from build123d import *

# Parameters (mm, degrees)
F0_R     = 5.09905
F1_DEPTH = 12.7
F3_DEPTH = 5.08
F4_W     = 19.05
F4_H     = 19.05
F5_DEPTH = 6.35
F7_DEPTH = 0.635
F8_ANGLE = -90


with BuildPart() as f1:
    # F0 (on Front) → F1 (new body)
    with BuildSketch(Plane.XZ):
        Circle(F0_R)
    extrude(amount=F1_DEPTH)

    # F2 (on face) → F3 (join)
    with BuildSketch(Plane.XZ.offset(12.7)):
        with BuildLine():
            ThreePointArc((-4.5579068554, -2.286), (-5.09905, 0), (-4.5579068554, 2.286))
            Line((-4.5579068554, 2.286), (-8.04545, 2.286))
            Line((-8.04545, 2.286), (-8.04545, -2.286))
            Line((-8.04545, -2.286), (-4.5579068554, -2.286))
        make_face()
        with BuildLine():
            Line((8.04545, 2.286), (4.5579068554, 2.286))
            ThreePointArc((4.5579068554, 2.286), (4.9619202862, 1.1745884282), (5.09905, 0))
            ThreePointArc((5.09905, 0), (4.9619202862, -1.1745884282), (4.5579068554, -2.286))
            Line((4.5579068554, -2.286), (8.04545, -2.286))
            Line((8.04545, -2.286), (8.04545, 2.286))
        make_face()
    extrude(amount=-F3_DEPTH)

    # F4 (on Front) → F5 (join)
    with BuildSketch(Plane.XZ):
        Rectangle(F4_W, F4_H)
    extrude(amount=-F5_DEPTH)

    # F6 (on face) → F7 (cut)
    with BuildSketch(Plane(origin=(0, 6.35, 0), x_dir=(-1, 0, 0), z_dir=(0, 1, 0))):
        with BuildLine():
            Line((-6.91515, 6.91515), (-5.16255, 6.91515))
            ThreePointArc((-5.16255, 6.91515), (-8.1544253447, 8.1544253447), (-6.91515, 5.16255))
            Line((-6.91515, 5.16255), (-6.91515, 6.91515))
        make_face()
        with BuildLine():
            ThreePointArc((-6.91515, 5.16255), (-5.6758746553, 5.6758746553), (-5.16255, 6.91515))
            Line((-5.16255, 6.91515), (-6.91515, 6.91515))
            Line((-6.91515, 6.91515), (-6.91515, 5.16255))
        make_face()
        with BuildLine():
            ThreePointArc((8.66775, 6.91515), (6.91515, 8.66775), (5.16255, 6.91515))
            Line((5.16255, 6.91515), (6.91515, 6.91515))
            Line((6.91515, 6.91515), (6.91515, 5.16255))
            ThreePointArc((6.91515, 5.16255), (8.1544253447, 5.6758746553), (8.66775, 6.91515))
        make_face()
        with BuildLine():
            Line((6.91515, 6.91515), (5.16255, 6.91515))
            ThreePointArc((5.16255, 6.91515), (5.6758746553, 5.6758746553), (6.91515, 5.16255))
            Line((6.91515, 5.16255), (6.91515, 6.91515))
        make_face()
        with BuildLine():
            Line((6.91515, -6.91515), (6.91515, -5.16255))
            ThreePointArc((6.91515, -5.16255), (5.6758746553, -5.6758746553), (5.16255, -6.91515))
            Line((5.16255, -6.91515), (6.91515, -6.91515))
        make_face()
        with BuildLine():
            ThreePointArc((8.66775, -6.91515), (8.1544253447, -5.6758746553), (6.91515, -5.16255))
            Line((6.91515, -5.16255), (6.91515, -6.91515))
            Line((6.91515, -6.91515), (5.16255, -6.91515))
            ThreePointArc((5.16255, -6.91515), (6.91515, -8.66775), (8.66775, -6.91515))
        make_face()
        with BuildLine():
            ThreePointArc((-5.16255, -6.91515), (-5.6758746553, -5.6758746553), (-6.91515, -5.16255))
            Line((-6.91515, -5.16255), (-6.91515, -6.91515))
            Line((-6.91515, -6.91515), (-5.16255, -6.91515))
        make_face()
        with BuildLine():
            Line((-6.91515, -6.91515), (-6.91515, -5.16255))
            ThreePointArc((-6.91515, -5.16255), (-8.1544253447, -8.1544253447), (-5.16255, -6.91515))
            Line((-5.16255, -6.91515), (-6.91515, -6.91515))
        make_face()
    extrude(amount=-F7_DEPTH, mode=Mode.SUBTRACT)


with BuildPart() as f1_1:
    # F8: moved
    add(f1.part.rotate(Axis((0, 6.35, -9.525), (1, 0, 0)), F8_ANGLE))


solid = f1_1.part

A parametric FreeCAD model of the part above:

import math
import FreeCAD as App
import Part
import Sketcher
from FreeCAD import Vector
Q = App.Units.Quantity


def add_polygon(sketch, points):
    """Adds a closed chain of lines whose ends are joined by coincident constraints."""
    first, n = sketch.GeometryCount, len(points)
    for a, b in zip(points, points[1:] + points[:1]):
        sketch.addGeometry(Part.LineSegment(App.Vector(*a, 0), App.Vector(*b, 0)), False)
    for i in range(n):
        sketch.addConstraint(Sketcher.Constraint("Coincident", first + i, 2, first + (i + 1) % n, 1))

doc = App.newDocument("Part")
params = doc.addObject("Spreadsheet::Sheet", "Params")
for row, (alias, value) in enumerate([
    ("pad1_length", "0.5 in"),
    ("sketch2_height", "0.18 in"),
    ("pad2_length", "0.2 in"),
    ("sketch3_width", "0.75 in"),
    ("pad3_length", "0.25 in"),
    ("sketch4_radius", "0.069 in"),
    ("pocket1_length", "0.025 in"),
], start=1):
    params.set(f"A{row}", alias)
    params.set(f"B{row}", "=" + value)
    params.setAlias(f"B{row}", alias)

body = doc.addObject("PartDesign::Body", "Body")

# Sketch on XZ plane
sketch1 = doc.addObject("Sketcher::SketchObject", "Sketch")
body.addObject(sketch1)
sketch1.AttachmentSupport = (doc.XZ_Plane, [""])
sketch1.MapMode = "FlatFace"
sketch1.addGeometry(Part.Circle(Vector(0, 0, 0), Vector(0, 0, 1), 5.09905), False)
sketch1.addConstraint([
    Sketcher.Constraint("Coincident", 0, 3, -1, 1),
    Sketcher.Constraint("Diameter", 0, Q("0.4015 in")),
])
pad1 = doc.addObject("PartDesign::Pad", "Pad")
body.addObject(pad1)
pad1.Profile = sketch1
pad1.setExpression("Length", "Params.pad1_length")

# Sketch on XZ plane
sketch2 = doc.addObject("Sketcher::SketchObject", "Sketch001")
body.addObject(sketch2)
sketch2.AttachmentSupport = (doc.XZ_Plane, [""])
sketch2.MapMode = "FlatFace"
sketch2.AttachmentOffset = App.Placement(Vector(0, 0, 0.5 * 25.4), App.Rotation())
sketch2.addGeometry([
    Part.ArcOfCircle(Part.Circle(Vector(0, 0, 0), Vector(0, 0, 1), 5.09905), math.radians(153.364129), math.radians(206.635871)),  # 0
    Part.LineSegment(Vector(-4.557907, 2.286, 0), Vector(-8.04545, 2.286, 0)),  # 1
    Part.LineSegment(Vector(-8.04545, 2.286, 0), Vector(-8.04545, -2.286, 0)),  # 2
    Part.LineSegment(Vector(-8.04545, -2.286, 0), Vector(-4.557907, -2.286, 0)),  # 3
    Part.LineSegment(Vector(8.04545, 2.286, 0), Vector(4.557907, 2.286, 0)),  # 4
    Part.ArcOfCircle(Part.Circle(Vector(0, 0, 0), Vector(0, 0, 1), 5.09905), math.radians(0), math.radians(26.635871)),  # 5
    Part.ArcOfCircle(Part.Circle(Vector(0, 0, 0), Vector(0, 0, 1), 5.09905), math.radians(-26.635871), math.radians(0)),  # 6
    Part.LineSegment(Vector(4.557907, -2.286, 0), Vector(8.04545, -2.286, 0)),  # 7
    Part.LineSegment(Vector(8.04545, -2.286, 0), Vector(8.04545, 2.286, 0)),  # 8
], False)
sketch2.addConstraint([
    Sketcher.Constraint("Coincident", 0, 1, 1, 1),
    Sketcher.Constraint("Coincident", 1, 2, 2, 1),
    Sketcher.Constraint("Coincident", 2, 2, 3, 1),
    Sketcher.Constraint("Coincident", 3, 2, 0, 2),
    Sketcher.Constraint("Coincident", 4, 2, 5, 2),
    Sketcher.Constraint("Tangent", 5, 1, 6, 2),
    Sketcher.Constraint("Coincident", 6, 1, 7, 1),
    Sketcher.Constraint("Coincident", 7, 2, 8, 1),
    Sketcher.Constraint("Coincident", 8, 2, 4, 1),
    Sketcher.Constraint("Horizontal", 1),
    Sketcher.Constraint("Vertical", 2),
    Sketcher.Constraint("Horizontal", 3),
    Sketcher.Constraint("Horizontal", 4),
    Sketcher.Constraint("Horizontal", 7),
    Sketcher.Constraint("Vertical", 8),
    Sketcher.Constraint("Coincident", 0, 3, -1, 1),
    Sketcher.Constraint("Coincident", 5, 3, -1, 1),
    Sketcher.Constraint("Equal", 0, 5),
    Sketcher.Constraint("Equal", 5, 6),
    Sketcher.Constraint("Symmetric", 1, 2, 7, 2, -1, 1),
    Sketcher.Constraint("PointOnObject", 5, 1, -1),
    Sketcher.Constraint("Horizontal", 1, 2, 4, 2),
    Sketcher.Constraint("Horizontal", 3, 2, 6, 1),
    Sketcher.Constraint("DistanceY", 2, 2, 2, 1, Q("0.18 in")),
    Sketcher.Constraint("Radius", 0, 5.09905),
    Sketcher.Constraint("DistanceX", 5, 1, 7, 2, Q("0.116 in")),
])
sketch2.setExpression("Constraints[23]", "Params.sketch2_height")
pad2 = doc.addObject("PartDesign::Pad", "Pad001")
body.addObject(pad2)
pad2.Profile = sketch2
pad2.setExpression("Length", "Params.pad2_length")
pad2.Reversed = True

# Sketch on XZ plane
sketch3 = doc.addObject("Sketcher::SketchObject", "Sketch002")
body.addObject(sketch3)
sketch3.AttachmentSupport = (doc.XZ_Plane, [""])
sketch3.MapMode = "FlatFace"
add_polygon(sketch3, [(-9.525, 9.525), (-9.525, -9.525), (9.525, -9.525), (9.525, 9.525)])  # lines 0-3
sketch3.addConstraint([
    Sketcher.Constraint("Vertical", 0),
    Sketcher.Constraint("Horizontal", 1),
    Sketcher.Constraint("Vertical", 2),
    Sketcher.Constraint("Horizontal", 3),
    Sketcher.Constraint("Symmetric", 0, 2, 2, 2, -1, 1),
    Sketcher.Constraint("Equal", 3, 0),
    Sketcher.Constraint("DistanceX", 1, 1, 1, 2, Q("0.75 in")),
])
sketch3.setExpression("Constraints[10]", "Params.sketch3_width")
pad3 = doc.addObject("PartDesign::Pad", "Pad002")
body.addObject(pad3)
pad3.Profile = sketch3
pad3.setExpression("Length", "Params.pad3_length")
pad3.Reversed = True

# Sketch on XZ plane
sketch4 = doc.addObject("Sketcher::SketchObject", "Sketch003")
body.addObject(sketch4)
sketch4.AttachmentSupport = (doc.XZ_Plane, [""])
sketch4.MapMode = "FlatFace"
sketch4.AttachmentOffset = App.Placement(Vector(0, 0, -0.25 * 25.4), App.Rotation())
sketch4.addGeometry([
    Part.ArcOfCircle(Part.Circle(Vector(6.91515, 6.91515, 0), Vector(0, 0, 1), 1.7526), math.radians(-90), math.radians(180)),  # 0
    Part.ArcOfCircle(Part.Circle(Vector(6.91515, 6.91515, 0), Vector(0, 0, 1), 1.7526), math.radians(180), math.radians(270)),  # 1
    Part.ArcOfCircle(Part.Circle(Vector(-6.91515, 6.91515, 0), Vector(0, 0, 1), 1.7526), math.radians(0), math.radians(180)),  # 2
    Part.ArcOfCircle(Part.Circle(Vector(-6.91515, 6.91515, 0), Vector(0, 0, 1), 1.7526), math.radians(-90), math.radians(0)),  # 3
    Part.ArcOfCircle(Part.Circle(Vector(-6.91515, 6.91515, 0), Vector(0, 0, 1), 1.7526), math.radians(180), math.radians(270)),  # 4
    Part.ArcOfCircle(Part.Circle(Vector(-6.91515, -6.91515, 0), Vector(0, 0, 1), 1.7526), math.radians(0), math.radians(90)),  # 5
    Part.ArcOfCircle(Part.Circle(Vector(-6.91515, -6.91515, 0), Vector(0, 0, 1), 1.7526), math.radians(180), math.radians(360)),  # 6
    Part.ArcOfCircle(Part.Circle(Vector(-6.91515, -6.91515, 0), Vector(0, 0, 1), 1.7526), math.radians(90), math.radians(180)),  # 7
    Part.ArcOfCircle(Part.Circle(Vector(6.91515, -6.91515, 0), Vector(0, 0, 1), 1.7526), math.radians(90), math.radians(180)),  # 8
    Part.ArcOfCircle(Part.Circle(Vector(6.91515, -6.91515, 0), Vector(0, 0, 1), 1.7526), math.radians(180), math.radians(450)),  # 9
], False)
sketch4.addConstraint([
    Sketcher.Constraint("Tangent", 0, 1, 1, 2),
    Sketcher.Constraint("Coincident", 1, 1, 0, 2),
    Sketcher.Constraint("Tangent", 2, 1, 3, 2),
    Sketcher.Constraint("Tangent", 3, 1, 4, 2),
    Sketcher.Constraint("Tangent", 4, 1, 2, 2),
    Sketcher.Constraint("Tangent", 5, 1, 6, 2),
    Sketcher.Constraint("Tangent", 6, 1, 7, 2),
    Sketcher.Constraint("Tangent", 7, 1, 5, 2),
    Sketcher.Constraint("Tangent", 8, 1, 9, 2),
    Sketcher.Constraint("Coincident", 9, 1, 8, 2),
    Sketcher.Constraint("Equal", 1, 2),
    Sketcher.Constraint("Equal", 4, 5),
    Sketcher.Constraint("Equal", 7, 8),
    Sketcher.Constraint("Symmetric", 0, 3, 5, 3, -1, 1),
    Sketcher.Constraint("Symmetric", 2, 3, 8, 3, -1, 1),
    Sketcher.Constraint("Symmetric", 0, 3, 2, 3, -2),
    Sketcher.Constraint("Horizontal", 4, 3, 1, 1),
    Sketcher.Constraint("Horizontal", 1, 1, 2, 1),
    Sketcher.Constraint("Horizontal", 2, 1, 4, 1),
    Sketcher.Constraint("Horizontal", 9, 3, 5, 1),
    Sketcher.Constraint("Horizontal", 5, 1, 6, 1),
    Sketcher.Constraint("Horizontal", 6, 1, 9, 1),
    Sketcher.Constraint("Vertical", 9, 3, 0, 1),
    Sketcher.Constraint("Vertical", 7, 3, 3, 1),
    Sketcher.Constraint("Vertical", 3, 1, 7, 1),
    Sketcher.Constraint("Vertical", 0, 1, 8, 1),
    Sketcher.Constraint("Radius", 0, Q("0.069 in")),
    Sketcher.Constraint("DistanceX", 2, 3, 0, 3, Q("0.5445 in")),
    Sketcher.Constraint("DistanceY", 5, 3, 2, 3, Q("0.5445 in")),
])
sketch4.setExpression("Constraints[26]", "Params.sketch4_radius")
pocket1 = doc.addObject("PartDesign::Pocket", "Pocket")
body.addObject(pocket1)
pocket1.Profile = sketch4
pocket1.setExpression("Length", "Params.pocket1_length")
pocket1.Reversed = True
body2 = doc.addObject("PartDesign::Body", "Body001")
doc.recompute()

body.Placement = App.Placement(Vector(0, 15.875, -3.175), App.Rotation(Vector(1, 0, 0), 270))
boolean = doc.addObject("PartDesign::Boolean", "Boolean")
body2.addObject(boolean)
boolean.Type = "Fuse"
boolean.addObjects([body])

doc.recompute()
